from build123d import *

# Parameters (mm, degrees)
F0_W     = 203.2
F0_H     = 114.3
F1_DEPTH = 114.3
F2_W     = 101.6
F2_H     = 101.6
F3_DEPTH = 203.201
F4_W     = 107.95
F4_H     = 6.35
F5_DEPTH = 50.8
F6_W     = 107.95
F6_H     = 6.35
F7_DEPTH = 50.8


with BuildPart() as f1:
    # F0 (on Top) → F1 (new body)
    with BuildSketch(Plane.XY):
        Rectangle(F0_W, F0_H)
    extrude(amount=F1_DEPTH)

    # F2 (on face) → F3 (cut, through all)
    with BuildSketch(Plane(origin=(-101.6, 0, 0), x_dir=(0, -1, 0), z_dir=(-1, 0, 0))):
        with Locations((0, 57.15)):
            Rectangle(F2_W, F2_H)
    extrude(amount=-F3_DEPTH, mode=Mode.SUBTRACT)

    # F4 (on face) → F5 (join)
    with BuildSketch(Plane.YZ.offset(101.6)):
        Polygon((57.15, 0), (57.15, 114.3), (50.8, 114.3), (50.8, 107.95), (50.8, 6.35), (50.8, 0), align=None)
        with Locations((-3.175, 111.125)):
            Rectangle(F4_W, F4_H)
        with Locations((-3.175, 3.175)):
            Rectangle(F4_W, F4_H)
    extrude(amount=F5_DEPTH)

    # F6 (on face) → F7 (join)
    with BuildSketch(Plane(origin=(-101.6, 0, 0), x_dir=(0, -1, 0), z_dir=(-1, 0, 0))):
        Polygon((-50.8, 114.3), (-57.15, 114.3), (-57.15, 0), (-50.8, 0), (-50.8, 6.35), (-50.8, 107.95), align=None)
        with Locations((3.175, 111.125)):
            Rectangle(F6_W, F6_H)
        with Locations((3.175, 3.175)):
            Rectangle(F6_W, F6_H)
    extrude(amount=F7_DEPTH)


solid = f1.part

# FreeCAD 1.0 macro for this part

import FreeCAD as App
import Part
import Sketcher

V = App.Vector
Q = App.Units.Quantity

doc = App.newDocument("Part")
params = doc.addObject("Spreadsheet::Sheet", "Params")
for row, (alias, value) in enumerate([
    ("sketch1_width", "8 in"),
    ("sketch1_height", "4.5 in"),
    ("pad1_length", "4.5 in"),
    ("sketch2_width", "4 in"),
    ("sketch3_height", "4 in"),
    ("sketch3_width", "4.5 in"),
    ("pad2_length", "2 in"),
    ("sketch4_height", "4 in"),
    ("sketch4_width", "4.5 in"),
    ("pad3_length", "2 in"),
], start=1):
    params.set(f"A{row}", alias)
    params.set(f"B{row}", "=" + value)
    params.setAlias(f"B{row}", alias)

body = doc.addObject("PartDesign::Body", "Body")

# Sketch on XY plane
sketch1 = doc.addObject("Sketcher::SketchObject", "Sketch")
body.addObject(sketch1)
sketch1.AttachmentSupport = (doc.XY_Plane, [""])
sketch1.MapMode = "FlatFace"
sketch1.addGeometry(Part.LineSegment(V(-101.6, 57.15, 0), V(-101.6, -57.15, 0)), False)
sketch1.addGeometry(Part.LineSegment(V(-101.6, -57.15, 0), V(101.6, -57.15, 0)), False)
sketch1.addGeometry(Part.LineSegment(V(101.6, -57.15, 0), V(101.6, 57.15, 0)), False)
sketch1.addGeometry(Part.LineSegment(V(101.6, 57.15, 0), V(-101.6, 57.15, 0)), False)
sketch1.addConstraint(Sketcher.Constraint("Coincident", 0, 2, 1, 1))
sketch1.addConstraint(Sketcher.Constraint("Coincident", 1, 2, 2, 1))
sketch1.addConstraint(Sketcher.Constraint("Coincident", 2, 2, 3, 1))
sketch1.addConstraint(Sketcher.Constraint("Coincident", 3, 2, 0, 1))
sketch1.addConstraint(Sketcher.Constraint("Vertical", 0))
sketch1.addConstraint(Sketcher.Constraint("Horizontal", 1))
sketch1.addConstraint(Sketcher.Constraint("Vertical", 2))
sketch1.addConstraint(Sketcher.Constraint("Horizontal", 3))
sketch1.addConstraint(Sketcher.Constraint("Symmetric", 0, 2, 2, 2, -1, 1))
sketch1.addConstraint(Sketcher.Constraint("DistanceX", 1, 1, 1, 2, Q("8 in")))
sketch1.addConstraint(Sketcher.Constraint("DistanceY", 0, 2, 0, 1, Q("4.5 in")))
sketch1.setExpression("Constraints[9]", "Params.sketch1_width")
sketch1.setExpression("Constraints[10]", "Params.sketch1_height")
pad1 = doc.addObject("PartDesign::Pad", "Pad")
body.addObject(pad1)
pad1.Profile = sketch1
pad1.setExpression("Length", "Params.pad1_length")

# Sketch on YZ plane
sketch2 = doc.addObject("Sketcher::SketchObject", "Sketch001")
body.addObject(sketch2)
sketch2.AttachmentSupport = (doc.YZ_Plane, [""])
sketch2.MapMode = "FlatFace"
sketch2.AttachmentOffset = App.Placement(V(0, 0, -4 * 25.4), App.Rotation())
sketch2.addGeometry(Part.LineSegment(V(50.8, 107.95, 0), V(50.8, 6.35, 0)), False)
sketch2.addGeometry(Part.LineSegment(V(50.8, 6.35, 0), V(-50.8, 6.35, 0)), False)
sketch2.addGeometry(Part.LineSegment(V(-50.8, 6.35, 0), V(-50.8, 107.95, 0)), False)
sketch2.addGeometry(Part.LineSegment(V(-50.8, 107.95, 0), V(50.8, 107.95, 0)), False)
sketch2.addConstraint(Sketcher.Constraint("Coincident", 0, 2, 1, 1))
sketch2.addConstraint(Sketcher.Constraint("Coincident", 1, 2, 2, 1))
sketch2.addConstraint(Sketcher.Constraint("Coincident", 2, 2, 3, 1))
sketch2.addConstraint(Sketcher.Constraint("Coincident", 3, 2, 0, 1))
sketch2.addConstraint(Sketcher.Constraint("Vertical", 0))
sketch2.addConstraint(Sketcher.Constraint("Horizontal", 1))
sketch2.addConstraint(Sketcher.Constraint("Vertical", 2))
sketch2.addConstraint(Sketcher.Constraint("Horizontal", 3))
sketch2.addConstraint(Sketcher.Constraint("Equal", 3, 0))
sketch2.addConstraint(Sketcher.Constraint("DistanceX", 1, 2, 1, 1, Q("4 in")))
sketch2.addConstraint(Sketcher.Constraint("DistanceX", -1, 1, 0, 2, Q("2 in")))
sketch2.addConstraint(Sketcher.Constraint("DistanceY", -1, 1, 0, 2, Q("0.25 in")))
sketch2.setExpression("Constraints[9]", "Params.sketch2_width")
pocket1 = doc.addObject("PartDesign::Pocket", "Pocket")
body.addObject(pocket1)
pocket1.Profile = sketch2
pocket1.Type = "ThroughAll"
pocket1.Reversed = True

# Sketch on YZ plane
sketch3 = doc.addObject("Sketcher::SketchObject", "Sketch002")
body.addObject(sketch3)
sketch3.AttachmentSupport = (doc.YZ_Plane, [""])
sketch3.MapMode = "FlatFace"
sketch3.AttachmentOffset = App.Placement(V(0, 0, 4 * 25.4), App.Rotation())
sketch3.addGeometry(Part.LineSegment(V(57.15, 0, 0), V(57.15, 114.3, 0)), False)
sketch3.addGeometry(Part.LineSegment(V(57.15, 114.3, 0), V(-57.15, 114.3, 0)), False)
sketch3.addGeometry(Part.LineSegment(V(-57.15, 114.3, 0), V(-57.15, 107.95, 0)), False)
sketch3.addGeometry(Part.LineSegment(V(-57.15, 107.95, 0), V(50.8, 107.95, 0)), False)
sketch3.addGeometry(Part.LineSegment(V(50.8, 107.95, 0), V(50.8, 6.35, 0)), False)
sketch3.addGeometry(Part.LineSegment(V(50.8, 6.35, 0), V(-57.15, 6.35, 0)), False)
sketch3.addGeometry(Part.LineSegment(V(-57.15, 6.35, 0), V(-57.15, 0, 0)), False)
sketch3.addGeometry(Part.LineSegment(V(-57.15, 0, 0), V(57.15, 0, 0)), False)
sketch3.addConstraint(Sketcher.Constraint("Coincident", 0, 2, 1, 1))
sketch3.addConstraint(Sketcher.Constraint("Coincident", 1, 2, 2, 1))
sketch3.addConstraint(Sketcher.Constraint("Coincident", 2, 2, 3, 1))
sketch3.addConstraint(Sketcher.Constraint("Coincident", 3, 2, 4, 1))
sketch3.addConstraint(Sketcher.Constraint("Coincident", 4, 2, 5, 1))
sketch3.addConstraint(Sketcher.Constraint("Coincident", 5, 2, 6, 1))
sketch3.addConstraint(Sketcher.Constraint("Coincident", 6, 2, 7, 1))
sketch3.addConstraint(Sketcher.Constraint("Coincident", 7, 2, 0, 1))
sketch3.addConstraint(Sketcher.Constraint("Vertical", 0))
sketch3.addConstraint(Sketcher.Constraint("Horizontal", 1))
sketch3.addConstraint(Sketcher.Constraint("Vertical", 2))
sketch3.addConstraint(Sketcher.Constraint("Horizontal", 3))
sketch3.addConstraint(Sketcher.Constraint("Vertical", 4))
sketch3.addConstraint(Sketcher.Constraint("Horizontal", 5))
sketch3.addConstraint(Sketcher.Constraint("Vertical", 6))
sketch3.addConstraint(Sketcher.Constraint("Horizontal", 7))
sketch3.addConstraint(Sketcher.Constraint("Symmetric", 6, 2, 7, 2, -1, 1))
sketch3.addConstraint(Sketcher.Constraint("Vertical", 2, 2, 5, 2))
sketch3.addConstraint(Sketcher.Constraint("Equal", 7, 0))
sketch3.addConstraint(Sketcher.Constraint("Equal", 2, 6))
sketch3.addConstraint(Sketcher.Constraint("DistanceY", 4, 2, 4, 1, Q("4 in")))
sketch3.addConstraint(Sketcher.Constraint("DistanceX", 1, 2, 1, 1, Q("4.5 in")))
sketch3.addConstraint(Sketcher.Constraint("DistanceX", -1, 1, 3, 2, Q("2 in")))
sketch3.setExpression("Constraints[20]", "Params.sketch3_height")
sketch3.setExpression("Constraints[21]", "Params.sketch3_width")
pad2 = doc.addObject("PartDesign::Pad", "Pad001")
body.addObject(pad2)
pad2.Profile = sketch3
pad2.setExpression("Length", "Params.pad2_length")

# Sketch on YZ plane
sketch4 = doc.addObject("Sketcher::SketchObject", "Sketch003")
body.addObject(sketch4)
sketch4.AttachmentSupport = (doc.YZ_Plane, [""])
sketch4.MapMode = "FlatFace"
sketch4.AttachmentOffset = App.Placement(V(0, 0, -4 * 25.4), App.Rotation())
sketch4.addGeometry(Part.LineSegment(V(57.15, 114.3, 0), V(57.15, 0, 0)), False)
sketch4.addGeometry(Part.LineSegment(V(57.15, 0, 0), V(-57.15, 0, 0)), False)
sketch4.addGeometry(Part.LineSegment(V(-57.15, 0, 0), V(-57.15, 6.35, 0)), False)
sketch4.addGeometry(Part.LineSegment(V(-57.15, 6.35, 0), V(50.8, 6.35, 0)), False)
sketch4.addGeometry(Part.LineSegment(V(50.8, 6.35, 0), V(50.8, 107.95, 0)), False)
sketch4.addGeometry(Part.LineSegment(V(50.8, 107.95, 0), V(-57.15, 107.95, 0)), False)
sketch4.addGeometry(Part.LineSegment(V(-57.15, 107.95, 0), V(-57.15, 114.3, 0)), False)
sketch4.addGeometry(Part.LineSegment(V(-57.15, 114.3, 0), V(57.15, 114.3, 0)), False)
sketch4.addConstraint(Sketcher.Constraint("Coincident", 0, 2, 1, 1))
sketch4.addConstraint(Sketcher.Constraint("Coincident", 1, 2, 2, 1))
sketch4.addConstraint(Sketcher.Constraint("Coincident", 2, 2, 3, 1))
sketch4.addConstraint(Sketcher.Constraint("Coincident", 3, 2, 4, 1))
sketch4.addConstraint(Sketcher.Constraint("Coincident", 4, 2, 5, 1))
sketch4.addConstraint(Sketcher.Constraint("Coincident", 5, 2, 6, 1))
sketch4.addConstraint(Sketcher.Constraint("Coincident", 6, 2, 7, 1))
sketch4.addConstraint(Sketcher.Constraint("Coincident", 7, 2, 0, 1))
sketch4.addConstraint(Sketcher.Constraint("Vertical", 0))
sketch4.addConstraint(Sketcher.Constraint("Horizontal", 1))
sketch4.addConstraint(Sketcher.Constraint("Vertical", 2))
sketch4.addConstraint(Sketcher.Constraint("Horizontal", 3))
sketch4.addConstraint(Sketcher.Constraint("Vertical", 4))
sketch4.addConstraint(Sketcher.Constraint("Horizontal", 5))
sketch4.addConstraint(Sketcher.Constraint("Vertical", 6))
sketch4.addConstraint(Sketcher.Constraint("Horizontal", 7))
sketch4.addConstraint(Sketcher.Constraint("Symmetric", 0, 2, 1, 2, -1, 1))
sketch4.addConstraint(Sketcher.Constraint("Vertical", 2, 2, 5, 2))
sketch4.addConstraint(Sketcher.Constraint("Equal", 7, 0))
sketch4.addConstraint(Sketcher.Constraint("Equal", 2, 6))
sketch4.addConstraint(Sketcher.Constraint("DistanceY", 4, 1, 4, 2, Q("4 in")))
sketch4.addConstraint(Sketcher.Constraint("DistanceX", 1, 2, 1, 1, Q("4.5 in")))
sketch4.addConstraint(Sketcher.Constraint("DistanceX", -1, 1, 3, 2, Q("2 in")))
sketch4.setExpression("Constraints[20]", "Params.sketch4_height")
sketch4.setExpression("Constraints[21]", "Params.sketch4_width")
pad3 = doc.addObject("PartDesign::Pad", "Pad002")
body.addObject(pad3)
pad3.Profile = sketch4
pad3.setExpression("Length", "Params.pad3_length")
pad3.Reversed = True

doc.recompute()
